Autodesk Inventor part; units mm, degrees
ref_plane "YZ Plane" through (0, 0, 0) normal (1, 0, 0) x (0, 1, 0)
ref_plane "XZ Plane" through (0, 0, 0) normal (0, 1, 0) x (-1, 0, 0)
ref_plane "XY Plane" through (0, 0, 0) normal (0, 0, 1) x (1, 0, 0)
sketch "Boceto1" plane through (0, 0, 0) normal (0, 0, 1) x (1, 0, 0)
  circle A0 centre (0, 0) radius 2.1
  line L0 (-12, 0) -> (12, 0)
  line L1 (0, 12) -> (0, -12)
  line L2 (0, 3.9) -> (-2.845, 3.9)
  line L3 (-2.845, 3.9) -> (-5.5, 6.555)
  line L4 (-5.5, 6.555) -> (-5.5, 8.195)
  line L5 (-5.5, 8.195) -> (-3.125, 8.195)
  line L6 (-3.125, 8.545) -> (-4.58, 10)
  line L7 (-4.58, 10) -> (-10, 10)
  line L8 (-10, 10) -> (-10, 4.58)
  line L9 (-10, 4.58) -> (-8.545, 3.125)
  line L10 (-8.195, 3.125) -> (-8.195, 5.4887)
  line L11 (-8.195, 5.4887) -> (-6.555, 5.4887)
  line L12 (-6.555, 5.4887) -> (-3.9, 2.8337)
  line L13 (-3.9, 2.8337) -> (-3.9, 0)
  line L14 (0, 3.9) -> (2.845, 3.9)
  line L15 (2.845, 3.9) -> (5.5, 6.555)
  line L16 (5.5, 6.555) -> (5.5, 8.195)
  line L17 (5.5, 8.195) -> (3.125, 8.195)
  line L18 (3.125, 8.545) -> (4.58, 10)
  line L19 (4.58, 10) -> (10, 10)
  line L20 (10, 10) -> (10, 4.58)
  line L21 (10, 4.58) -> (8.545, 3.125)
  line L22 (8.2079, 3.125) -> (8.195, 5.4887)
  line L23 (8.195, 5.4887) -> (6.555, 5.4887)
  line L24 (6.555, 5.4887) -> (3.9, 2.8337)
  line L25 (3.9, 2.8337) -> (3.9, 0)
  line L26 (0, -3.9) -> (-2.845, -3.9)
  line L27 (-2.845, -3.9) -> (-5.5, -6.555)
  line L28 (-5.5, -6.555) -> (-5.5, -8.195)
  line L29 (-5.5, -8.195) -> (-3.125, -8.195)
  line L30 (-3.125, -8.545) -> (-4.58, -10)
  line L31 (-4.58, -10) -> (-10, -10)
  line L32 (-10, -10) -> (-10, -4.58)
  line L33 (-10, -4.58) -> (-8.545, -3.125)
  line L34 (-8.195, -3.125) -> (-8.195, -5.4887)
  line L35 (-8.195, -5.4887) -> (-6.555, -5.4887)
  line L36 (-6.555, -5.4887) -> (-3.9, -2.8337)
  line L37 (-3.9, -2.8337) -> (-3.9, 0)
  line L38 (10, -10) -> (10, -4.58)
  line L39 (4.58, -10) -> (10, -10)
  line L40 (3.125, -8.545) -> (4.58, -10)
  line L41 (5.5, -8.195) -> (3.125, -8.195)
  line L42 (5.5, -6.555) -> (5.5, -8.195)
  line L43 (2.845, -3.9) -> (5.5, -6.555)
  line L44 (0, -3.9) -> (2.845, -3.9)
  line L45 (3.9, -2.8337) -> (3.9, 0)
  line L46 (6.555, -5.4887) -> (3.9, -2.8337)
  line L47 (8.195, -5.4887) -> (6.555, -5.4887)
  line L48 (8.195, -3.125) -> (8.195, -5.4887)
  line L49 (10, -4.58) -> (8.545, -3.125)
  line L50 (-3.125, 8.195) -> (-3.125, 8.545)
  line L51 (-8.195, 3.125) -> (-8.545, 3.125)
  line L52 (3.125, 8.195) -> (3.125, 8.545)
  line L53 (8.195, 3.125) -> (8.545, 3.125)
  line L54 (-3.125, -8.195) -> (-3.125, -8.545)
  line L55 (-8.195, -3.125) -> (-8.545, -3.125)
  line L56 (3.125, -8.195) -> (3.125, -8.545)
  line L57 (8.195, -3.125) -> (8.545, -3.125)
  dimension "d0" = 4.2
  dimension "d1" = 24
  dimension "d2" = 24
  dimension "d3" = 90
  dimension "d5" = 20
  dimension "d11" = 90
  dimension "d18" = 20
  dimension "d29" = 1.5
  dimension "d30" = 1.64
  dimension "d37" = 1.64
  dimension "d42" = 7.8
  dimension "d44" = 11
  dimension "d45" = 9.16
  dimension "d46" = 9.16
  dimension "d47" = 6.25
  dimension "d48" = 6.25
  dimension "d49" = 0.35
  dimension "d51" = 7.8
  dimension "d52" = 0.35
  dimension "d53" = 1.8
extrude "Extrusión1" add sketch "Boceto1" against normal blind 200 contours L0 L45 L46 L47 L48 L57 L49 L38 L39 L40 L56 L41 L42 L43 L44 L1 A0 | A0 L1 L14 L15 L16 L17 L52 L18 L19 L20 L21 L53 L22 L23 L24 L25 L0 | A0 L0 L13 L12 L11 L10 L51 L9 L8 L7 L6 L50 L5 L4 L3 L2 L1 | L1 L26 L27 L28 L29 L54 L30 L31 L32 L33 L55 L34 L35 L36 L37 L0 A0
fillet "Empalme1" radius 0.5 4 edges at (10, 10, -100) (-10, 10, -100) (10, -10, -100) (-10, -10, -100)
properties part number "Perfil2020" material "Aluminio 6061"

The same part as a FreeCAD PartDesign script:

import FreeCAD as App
import Part
import Sketcher

V = App.Vector
Q = App.Units.Quantity


def edges_at(feature, points):
    """Names of the edges that pass closest to the given points."""
    edges = feature.Shape.Edges
    near = lambda p: min(range(len(edges)), key=lambda i: edges[i].distToShape(Part.Vertex(*p))[0])
    return sorted({f"Edge{near(p) + 1}" for p in points})


def add_polygon(sketch, points):
    """Adds a closed chain of lines whose ends are joined by coincident constraints."""
    first, n = sketch.GeometryCount, len(points)
    for a, b in zip(points, points[1:] + points[:1]):
        sketch.addGeometry(Part.LineSegment(App.Vector(*a, 0), App.Vector(*b, 0)), False)
    for i in range(n):
        sketch.addConstraint(Sketcher.Constraint("Coincident", first + i, 2, first + (i + 1) % n, 1))

doc = App.newDocument("Part")
body = doc.addObject("PartDesign::Body", "Body")

sketch1 = body.newObject("Sketcher::SketchObject", "Sketch")
sketch1.AttachmentSupport = (doc.getObject("XY_Plane"), [""])
sketch1.MapMode = "FlatFace"
add_polygon(sketch1, [(3.9, -2.83), (3.9, 2.83), (6.55, 5.49), (8.2, 5.49), (8.21, 3.12), (8.54, 3.12), (10, 4.58), (10, 10), (4.58, 10), (3.12, 8.54), (3.12, 8.2), (5.5, 8.2), (5.5, 6.55), (2.85, 3.9), (-2.85, 3.9), (-5.5, 6.55), (-5.5, 8.2), (-3.12, 8.2), (-3.12, 8.54), (-4.58, 10), (-10, 10), (-10, 4.58), (-8.54, 3.12), (-8.2, 3.12), (-8.2, 5.49), (-6.55, 5.49), (-3.9, 2.83), (-3.9, -2.83), (-6.55, -5.49), (-8.2, -5.49), (-8.2, -3.12), (-8.54, -3.12), (-10, -4.58), (-10, -10), (-4.58, -10), (-3.12, -8.54), (-3.12, -8.2), (-5.5, -8.2), (-5.5, -6.55), (-2.85, -3.9), (2.85, -3.9), (5.5, -6.55), (5.5, -8.2), (3.12, -8.2), (3.12, -8.54), (4.58, -10), (10, -10), (10, -4.58), (8.54, -3.12), (8.2, -3.12), (8.2, -5.49), (6.55, -5.49)])
sketch1.addGeometry(Part.Circle(V(0, 0, 0), V(0, 0, 1), 2.1), False)
sketch1.addConstraint(Sketcher.Constraint("Vertical", 0))
sketch1.addConstraint(Sketcher.Constraint("Horizontal", 2))
sketch1.addConstraint(Sketcher.Constraint("Horizontal", 4))
sketch1.addConstraint(Sketcher.Constraint("Vertical", 6))
sketch1.addConstraint(Sketcher.Constraint("Horizontal", 7))
sketch1.addConstraint(Sketcher.Constraint("Vertical", 9))
sketch1.addConstraint(Sketcher.Constraint("Horizontal", 10))
sketch1.addConstraint(Sketcher.Constraint("Vertical", 11))
sketch1.addConstraint(Sketcher.Constraint("Horizontal", 13))
sketch1.addConstraint(Sketcher.Constraint("Vertical", 15))
sketch1.addConstraint(Sketcher.Constraint("Horizontal", 16))
sketch1.addConstraint(Sketcher.Constraint("Vertical", 17))
sketch1.addConstraint(Sketcher.Constraint("Horizontal", 19))
sketch1.addConstraint(Sketcher.Constraint("Vertical", 20))
sketch1.addConstraint(Sketcher.Constraint("Horizontal", 22))
sketch1.addConstraint(Sketcher.Constraint("Vertical", 23))
sketch1.addConstraint(Sketcher.Constraint("Horizontal", 24))
sketch1.addConstraint(Sketcher.Constraint("Vertical", 26))
sketch1.addConstraint(Sketcher.Constraint("Horizontal", 28))
sketch1.addConstraint(Sketcher.Constraint("Vertical", 29))
sketch1.addConstraint(Sketcher.Constraint("Horizontal", 30))
sketch1.addConstraint(Sketcher.Constraint("Vertical", 32))
sketch1.addConstraint(Sketcher.Constraint("Horizontal", 33))
sketch1.addConstraint(Sketcher.Constraint("Vertical", 35))
sketch1.addConstraint(Sketcher.Constraint("Horizontal", 36))
sketch1.addConstraint(Sketcher.Constraint("Vertical", 37))
sketch1.addConstraint(Sketcher.Constraint("Horizontal", 39))
sketch1.addConstraint(Sketcher.Constraint("Vertical", 41))
sketch1.addConstraint(Sketcher.Constraint("Horizontal", 42))
sketch1.addConstraint(Sketcher.Constraint("Vertical", 43))
sketch1.addConstraint(Sketcher.Constraint("Horizontal", 45))
sketch1.addConstraint(Sketcher.Constraint("Vertical", 46))
sketch1.addConstraint(Sketcher.Constraint("Horizontal", 48))
sketch1.addConstraint(Sketcher.Constraint("Vertical", 49))
sketch1.addConstraint(Sketcher.Constraint("Horizontal", 50))
sketch1.addConstraint(Sketcher.Constraint("Coincident", 52, 3, -1, 1))
sketch1.addConstraint(Sketcher.Constraint("Symmetric", 0, 2, 26, 2, -1, 1))
sketch1.addConstraint(Sketcher.Constraint("Symmetric", 1, 2, 27, 2, -1, 1))
sketch1.addConstraint(Sketcher.Constraint("Symmetric", 4, 2, 30, 2, -1, 1))
sketch1.addConstraint(Sketcher.Constraint("Symmetric", 5, 2, 31, 2, -1, 1))
sketch1.addConstraint(Sketcher.Constraint("Symmetric", 7, 2, 33, 2, -1, 1))
sketch1.addConstraint(Sketcher.Constraint("Symmetric", 8, 2, 34, 2, -1, 1))
sketch1.addConstraint(Sketcher.Constraint("Symmetric", 10, 2, 36, 2, -1, 1))
sketch1.addConstraint(Sketcher.Constraint("Symmetric", 12, 2, 38, 2, -1, 1))
sketch1.addConstraint(Sketcher.Constraint("Symmetric", 14, 2, 40, 2, -1, 1))
sketch1.addConstraint(Sketcher.Constraint("Symmetric", 16, 2, 42, 2, -1, 1))
sketch1.addConstraint(Sketcher.Constraint("Symmetric", 18, 2, 44, 2, -1, 1))
sketch1.addConstraint(Sketcher.Constraint("Symmetric", 20, 2, 46, 2, -1, 1))
sketch1.addConstraint(Sketcher.Constraint("Symmetric", 21, 2, 47, 2, -1, 1))
sketch1.addConstraint(Sketcher.Constraint("Symmetric", 23, 2, 49, 2, -1, 1))
sketch1.addConstraint(Sketcher.Constraint("Symmetric", 11, 2, 14, 2, -2))
sketch1.addConstraint(Sketcher.Constraint("Symmetric", 9, 2, 16, 2, -2))
sketch1.addConstraint(Sketcher.Constraint("Symmetric", 7, 2, 18, 2, -2))
sketch1.addConstraint(Sketcher.Constraint("Symmetric", 5, 2, 20, 2, -2))
sketch1.addConstraint(Sketcher.Constraint("Symmetric", 4, 2, 21, 2, -2))
sketch1.addConstraint(Sketcher.Constraint("Symmetric", 2, 2, 23, 2, -2))
sketch1.addConstraint(Sketcher.Constraint("Parallel", 1, 5))
sketch1.addConstraint(Sketcher.Constraint("Parallel", 5, 8))
sketch1.addConstraint(Sketcher.Constraint("Parallel", 8, 12))
sketch1.addConstraint(Sketcher.Constraint("Perpendicular", 12, 14))
sketch1.addConstraint(Sketcher.Constraint("Parallel", 14, 18))
sketch1.addConstraint(Sketcher.Constraint("Parallel", 18, 21))
sketch1.addConstraint(Sketcher.Constraint("Parallel", 21, 25))
sketch1.addConstraint(Sketcher.Constraint("Parallel", 34, 38))
sketch1.addConstraint(Sketcher.Constraint("Perpendicular", 38, 40))
sketch1.addConstraint(Sketcher.Constraint("Parallel", 40, 44))
sketch1.addConstraint(Sketcher.Constraint("Parallel", 47, 51))
sketch1.addConstraint(Sketcher.Constraint("Horizontal", 0, 2, 25, 2))
sketch1.addConstraint(Sketcher.Constraint("Horizontal", 26, 2, 51, 2))
sketch1.addConstraint(Sketcher.Constraint("Vertical", 23, 2, 28, 2))
sketch1.addConstraint(Sketcher.Constraint("Equal", 45, 6))
sketch1.addConstraint(Sketcher.Constraint("Equal", 48, 9))
sketch1.addConstraint(Sketcher.Constraint("Equal", 50, 11))
sketch1.addConstraint(Sketcher.Constraint("Equal", 5, 8))
sketch1.addConstraint(Sketcher.Constraint("Equal", 1, 12))
sketch1.addConstraint(Sketcher.Constraint("Diameter", 52, Q("4.2 mm")))
sketch1.addConstraint(Sketcher.Constraint("DistanceX", 2, 1, 2, 2, Q("1.64 mm")))
sketch1.addConstraint(Sketcher.Constraint("DistanceX", 22, 1, 22, 2, Q("0.35 mm")))
sketch1.addConstraint(Sketcher.Constraint("DistanceX", 16, 2, 9, 2, Q("6.25 mm")))
sketch1.addConstraint(Sketcher.Constraint("DistanceY", 29, 2, 22, 2, Q("6.25 mm")))
sketch1.addConstraint(Sketcher.Constraint("DistanceX", -1, 1, 5, 2, Q("10 mm")))
sketch1.addConstraint(Sketcher.Constraint("DistanceX", 7, 2, 7, 1, Q("5.42 mm")))
sketch1.addConstraint(Sketcher.Constraint("DistanceX", 13, 2, 13, 1, Q("5.69 mm")))
sketch1.addConstraint(Sketcher.Constraint("DistanceX", -1, 1, 0, 2, Q("3.9 mm")))
sketch1.addConstraint(Sketcher.Constraint("DistanceX", 4, 1, 4, 2, Q("0.337 mm")))
sketch1.addConstraint(Sketcher.Constraint("DistanceY", 0, 1, 0, 2, Q("5.6674 mm")))
pad1 = body.newObject("PartDesign::Pad", "Pad")
pad1.Profile = sketch1
pad1.Length = 200
pad1.Reversed = True
doc.recompute()

fillet = body.newObject("PartDesign::Fillet", "Fillet")
fillet.Base = (pad1, edges_at(pad1, [
    (10, 10, -100),
    (-10, 10, -100),
    (10, -10, -100),
    (-10, -10, -100),
]))
fillet.Radius = 0.5

doc.recompute()
